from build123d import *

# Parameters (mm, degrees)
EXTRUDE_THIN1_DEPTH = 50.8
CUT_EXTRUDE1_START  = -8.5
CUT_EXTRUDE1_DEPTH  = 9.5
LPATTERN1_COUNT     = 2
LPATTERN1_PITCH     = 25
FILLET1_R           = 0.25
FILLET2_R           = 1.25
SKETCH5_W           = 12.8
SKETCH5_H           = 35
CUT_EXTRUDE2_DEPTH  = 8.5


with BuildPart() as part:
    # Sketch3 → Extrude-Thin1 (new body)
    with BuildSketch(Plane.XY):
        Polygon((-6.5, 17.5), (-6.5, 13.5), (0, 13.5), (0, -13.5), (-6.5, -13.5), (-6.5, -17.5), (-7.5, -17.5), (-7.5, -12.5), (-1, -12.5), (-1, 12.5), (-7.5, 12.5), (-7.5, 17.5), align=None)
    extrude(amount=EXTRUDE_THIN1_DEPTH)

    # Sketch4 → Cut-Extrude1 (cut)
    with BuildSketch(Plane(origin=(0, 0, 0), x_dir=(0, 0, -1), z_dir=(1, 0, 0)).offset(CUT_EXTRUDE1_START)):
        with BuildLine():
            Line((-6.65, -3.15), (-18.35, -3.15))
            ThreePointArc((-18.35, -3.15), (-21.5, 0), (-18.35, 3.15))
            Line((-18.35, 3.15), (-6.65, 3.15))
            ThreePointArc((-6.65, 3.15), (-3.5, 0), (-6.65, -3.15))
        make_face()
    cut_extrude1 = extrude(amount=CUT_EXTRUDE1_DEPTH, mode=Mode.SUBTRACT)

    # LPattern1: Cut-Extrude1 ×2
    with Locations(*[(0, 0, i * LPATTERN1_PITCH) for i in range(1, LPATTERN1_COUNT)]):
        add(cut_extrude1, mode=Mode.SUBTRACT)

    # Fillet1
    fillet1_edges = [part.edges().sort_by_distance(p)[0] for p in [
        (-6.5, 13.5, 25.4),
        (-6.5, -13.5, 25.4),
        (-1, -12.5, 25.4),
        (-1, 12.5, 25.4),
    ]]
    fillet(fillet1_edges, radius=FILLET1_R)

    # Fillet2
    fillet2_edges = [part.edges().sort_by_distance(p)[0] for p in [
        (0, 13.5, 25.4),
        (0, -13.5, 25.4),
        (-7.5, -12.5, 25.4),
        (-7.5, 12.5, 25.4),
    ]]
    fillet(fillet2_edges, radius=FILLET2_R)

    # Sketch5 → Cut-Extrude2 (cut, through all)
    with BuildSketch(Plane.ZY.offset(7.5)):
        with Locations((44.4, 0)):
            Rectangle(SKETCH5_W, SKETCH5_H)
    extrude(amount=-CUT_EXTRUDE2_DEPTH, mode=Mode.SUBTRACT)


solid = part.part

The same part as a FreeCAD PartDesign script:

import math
import FreeCAD as App
import Part
import Sketcher


def edges_at(feature, points):
    """Names of the edges that pass closest to the given points."""
    edges = feature.Shape.Edges
    near = lambda p: min(range(len(edges)), key=lambda i: edges[i].distToShape(Part.Vertex(*p))[0])
    return sorted({f"Edge{near(p) + 1}" for p in points})


def add_polygon(sketch, points):
    """Adds a closed chain of lines whose ends are joined by coincident constraints."""
    first, n = sketch.GeometryCount, len(points)
    for a, b in zip(points, points[1:] + points[:1]):
        sketch.addGeometry(Part.LineSegment(App.Vector(*a, 0), App.Vector(*b, 0)), False)
    for i in range(n):
        sketch.addConstraint(Sketcher.Constraint("Coincident", first + i, 2, first + (i + 1) % n, 1))

doc = App.newDocument("Part")
body = doc.addObject("PartDesign::Body", "Body")

# Sketch on XY plane
sketch1 = doc.addObject("Sketcher::SketchObject", "Sketch")
body.addObject(sketch1)
sketch1.AttachmentSupport = (doc.XY_Plane, [""])
sketch1.MapMode = "FlatFace"
add_polygon(sketch1, [(-6.5, 13.5), (-6.5, 17.5), (-7.5, 17.5), (-7.5, 12.5), (-1, 12.5), (-1, -12.5), (-7.5, -12.5), (-7.5, -17.5), (-6.5, -17.5), (-6.5, -13.5), (0, -13.5), (0, 13.5)])  # lines 0-11
sketch1.addConstraint([
    Sketcher.Constraint("Vertical", 0),
    Sketcher.Constraint("Horizontal", 1),
    Sketcher.Constraint("Vertical", 2),
    Sketcher.Constraint("Horizontal", 3),
    Sketcher.Constraint("Vertical", 4),
    Sketcher.Constraint("Horizontal", 5),
    Sketcher.Constraint("Vertical", 6),
    Sketcher.Constraint("Horizontal", 7),
    Sketcher.Constraint("Vertical", 8),
    Sketcher.Constraint("Horizontal", 9),
    Sketcher.Constraint("Vertical", 10),
    Sketcher.Constraint("Horizontal", 11),
    Sketcher.Constraint("Symmetric", 9, 2, 10, 2, -1, 1),
    Sketcher.Constraint("Symmetric", 2, 2, 5, 2, -1),
    Sketcher.Constraint("Symmetric", 0, 2, 7, 2, -1),
    Sketcher.Constraint("Equal", 5, 9),
    Sketcher.Constraint("DistanceX", 1, 2, 1, 1, 1.0),
    Sketcher.Constraint("DistanceY", 0, 1, 0, 2, 4.0),
    Sketcher.Constraint("DistanceY", 2, 2, 2, 1, 5.0),
    Sketcher.Constraint("DistanceY", 4, 2, 4, 1, 25.0),
    Sketcher.Constraint("DistanceX", 3, 1, 3, 2, 6.5),
])
pad1 = doc.addObject("PartDesign::Pad", "Pad")
body.addObject(pad1)
pad1.Profile = sketch1
pad1.Length = 50.8

# Sketch on YZ plane
sketch2 = doc.addObject("Sketcher::SketchObject", "Sketch001")
body.addObject(sketch2)
sketch2.AttachmentSupport = (doc.YZ_Plane, [""])
sketch2.MapMode = "FlatFace"
sketch2.AttachmentOffset = App.Placement(App.Vector(0, 0, -8.5), App.Rotation())
sketch2.addGeometry([
    Part.LineSegment(App.Vector(-3.1, 18.4, 0), App.Vector(-3.1, 6.7, 0)),
    Part.ArcOfCircle(Part.Circle(App.Vector(0, 6.7, 0), App.Vector(0, 0, 1), 3.1), math.radians(180), math.radians(360)),
    Part.LineSegment(App.Vector(3.1, 6.7, 0), App.Vector(3.1, 18.4, 0)),
    Part.ArcOfCircle(Part.Circle(App.Vector(0, 18.4, 0), App.Vector(0, 0, 1), 3.1), math.radians(0), math.radians(180)),
], False)
sketch2.addConstraint([
    Sketcher.Constraint("Tangent", 0, 2, 1, 1),
    Sketcher.Constraint("Tangent", 1, 2, 2, 1),
    Sketcher.Constraint("Tangent", 2, 2, 3, 1),
    Sketcher.Constraint("Tangent", 3, 2, 0, 1),
    Sketcher.Constraint("Vertical", 0),
    Sketcher.Constraint("Vertical", 2),
    Sketcher.Constraint("PointOnObject", 1, 3, -2),
    Sketcher.Constraint("Radius", 1, 3.15),
    Sketcher.Constraint("DistanceY", 0, 2, 0, 1, 11.7),
    Sketcher.Constraint("DistanceY", -1, 1, 1, 3, 6.65),
])
pocket1 = doc.addObject("PartDesign::Pocket", "Pocket")
body.addObject(pocket1)
pocket1.Profile = sketch2
pocket1.Length = 9.5
pocket1.Reversed = True
doc.recompute()

linearpattern = doc.addObject("PartDesign::LinearPattern", "LinearPattern")
body.addObject(linearpattern)
linearpattern.Originals = [pocket1]
linearpattern.Direction = (doc.Z_Axis, [""])
linearpattern.Mode = "offset"
linearpattern.Offset = 25
linearpattern.Occurrences = 2
body.Tip = linearpattern
doc.recompute()

fillet = doc.addObject("PartDesign::Fillet", "Fillet")
body.addObject(fillet)
fillet.Base = (linearpattern, edges_at(linearpattern, [
    (-6.5, 13.5, 25.4),
    (-6.5, -13.5, 25.4),
    (-1, -12.5, 25.4),
    (-1, 12.5, 25.4),
]))
fillet.Radius = 0.25
doc.recompute()

fillet2 = doc.addObject("PartDesign::Fillet", "Fillet001")
body.addObject(fillet2)
fillet2.Base = (fillet, edges_at(fillet, [
    (0, 13.5, 25.4),
    (0, -13.5, 25.4),
    (-7.5, -12.5, 25.4),
    (-7.5, 12.5, 25.4),
]))
fillet2.Radius = 1.25

# Sketch on YZ plane
sketch3 = doc.addObject("Sketcher::SketchObject", "Sketch002")
body.addObject(sketch3)
sketch3.AttachmentSupport = (doc.YZ_Plane, [""])
sketch3.MapMode = "FlatFace"
sketch3.AttachmentOffset = App.Placement(App.Vector(0, 0, -7.5), App.Rotation())
add_polygon(sketch3, [(18, 38), (-18, 38), (-18, 51), (18, 51)])  # lines 0-3
sketch3.addConstraint([
    Sketcher.Constraint("Horizontal", 0),
    Sketcher.Constraint("Vertical", 1),
    Sketcher.Constraint("Horizontal", 2),
    Sketcher.Constraint("Vertical", 3),
    Sketcher.Constraint("DistanceX", 0, 2, 0, 1, 35.0),
    Sketcher.Constraint("DistanceY", 1, 1, 1, 2, 12.8),
    Sketcher.Constraint("DistanceY", -1, 1, 0, 2, 38.0),
    Sketcher.Constraint("DistanceX", 0, 2, -1, 1, 17.5),
])
pocket2 = doc.addObject("PartDesign::Pocket", "Pocket001")
body.addObject(pocket2)
pocket2.Profile = sketch3
pocket2.Type = "ThroughAll"
pocket2.Reversed = True

doc.recompute()
